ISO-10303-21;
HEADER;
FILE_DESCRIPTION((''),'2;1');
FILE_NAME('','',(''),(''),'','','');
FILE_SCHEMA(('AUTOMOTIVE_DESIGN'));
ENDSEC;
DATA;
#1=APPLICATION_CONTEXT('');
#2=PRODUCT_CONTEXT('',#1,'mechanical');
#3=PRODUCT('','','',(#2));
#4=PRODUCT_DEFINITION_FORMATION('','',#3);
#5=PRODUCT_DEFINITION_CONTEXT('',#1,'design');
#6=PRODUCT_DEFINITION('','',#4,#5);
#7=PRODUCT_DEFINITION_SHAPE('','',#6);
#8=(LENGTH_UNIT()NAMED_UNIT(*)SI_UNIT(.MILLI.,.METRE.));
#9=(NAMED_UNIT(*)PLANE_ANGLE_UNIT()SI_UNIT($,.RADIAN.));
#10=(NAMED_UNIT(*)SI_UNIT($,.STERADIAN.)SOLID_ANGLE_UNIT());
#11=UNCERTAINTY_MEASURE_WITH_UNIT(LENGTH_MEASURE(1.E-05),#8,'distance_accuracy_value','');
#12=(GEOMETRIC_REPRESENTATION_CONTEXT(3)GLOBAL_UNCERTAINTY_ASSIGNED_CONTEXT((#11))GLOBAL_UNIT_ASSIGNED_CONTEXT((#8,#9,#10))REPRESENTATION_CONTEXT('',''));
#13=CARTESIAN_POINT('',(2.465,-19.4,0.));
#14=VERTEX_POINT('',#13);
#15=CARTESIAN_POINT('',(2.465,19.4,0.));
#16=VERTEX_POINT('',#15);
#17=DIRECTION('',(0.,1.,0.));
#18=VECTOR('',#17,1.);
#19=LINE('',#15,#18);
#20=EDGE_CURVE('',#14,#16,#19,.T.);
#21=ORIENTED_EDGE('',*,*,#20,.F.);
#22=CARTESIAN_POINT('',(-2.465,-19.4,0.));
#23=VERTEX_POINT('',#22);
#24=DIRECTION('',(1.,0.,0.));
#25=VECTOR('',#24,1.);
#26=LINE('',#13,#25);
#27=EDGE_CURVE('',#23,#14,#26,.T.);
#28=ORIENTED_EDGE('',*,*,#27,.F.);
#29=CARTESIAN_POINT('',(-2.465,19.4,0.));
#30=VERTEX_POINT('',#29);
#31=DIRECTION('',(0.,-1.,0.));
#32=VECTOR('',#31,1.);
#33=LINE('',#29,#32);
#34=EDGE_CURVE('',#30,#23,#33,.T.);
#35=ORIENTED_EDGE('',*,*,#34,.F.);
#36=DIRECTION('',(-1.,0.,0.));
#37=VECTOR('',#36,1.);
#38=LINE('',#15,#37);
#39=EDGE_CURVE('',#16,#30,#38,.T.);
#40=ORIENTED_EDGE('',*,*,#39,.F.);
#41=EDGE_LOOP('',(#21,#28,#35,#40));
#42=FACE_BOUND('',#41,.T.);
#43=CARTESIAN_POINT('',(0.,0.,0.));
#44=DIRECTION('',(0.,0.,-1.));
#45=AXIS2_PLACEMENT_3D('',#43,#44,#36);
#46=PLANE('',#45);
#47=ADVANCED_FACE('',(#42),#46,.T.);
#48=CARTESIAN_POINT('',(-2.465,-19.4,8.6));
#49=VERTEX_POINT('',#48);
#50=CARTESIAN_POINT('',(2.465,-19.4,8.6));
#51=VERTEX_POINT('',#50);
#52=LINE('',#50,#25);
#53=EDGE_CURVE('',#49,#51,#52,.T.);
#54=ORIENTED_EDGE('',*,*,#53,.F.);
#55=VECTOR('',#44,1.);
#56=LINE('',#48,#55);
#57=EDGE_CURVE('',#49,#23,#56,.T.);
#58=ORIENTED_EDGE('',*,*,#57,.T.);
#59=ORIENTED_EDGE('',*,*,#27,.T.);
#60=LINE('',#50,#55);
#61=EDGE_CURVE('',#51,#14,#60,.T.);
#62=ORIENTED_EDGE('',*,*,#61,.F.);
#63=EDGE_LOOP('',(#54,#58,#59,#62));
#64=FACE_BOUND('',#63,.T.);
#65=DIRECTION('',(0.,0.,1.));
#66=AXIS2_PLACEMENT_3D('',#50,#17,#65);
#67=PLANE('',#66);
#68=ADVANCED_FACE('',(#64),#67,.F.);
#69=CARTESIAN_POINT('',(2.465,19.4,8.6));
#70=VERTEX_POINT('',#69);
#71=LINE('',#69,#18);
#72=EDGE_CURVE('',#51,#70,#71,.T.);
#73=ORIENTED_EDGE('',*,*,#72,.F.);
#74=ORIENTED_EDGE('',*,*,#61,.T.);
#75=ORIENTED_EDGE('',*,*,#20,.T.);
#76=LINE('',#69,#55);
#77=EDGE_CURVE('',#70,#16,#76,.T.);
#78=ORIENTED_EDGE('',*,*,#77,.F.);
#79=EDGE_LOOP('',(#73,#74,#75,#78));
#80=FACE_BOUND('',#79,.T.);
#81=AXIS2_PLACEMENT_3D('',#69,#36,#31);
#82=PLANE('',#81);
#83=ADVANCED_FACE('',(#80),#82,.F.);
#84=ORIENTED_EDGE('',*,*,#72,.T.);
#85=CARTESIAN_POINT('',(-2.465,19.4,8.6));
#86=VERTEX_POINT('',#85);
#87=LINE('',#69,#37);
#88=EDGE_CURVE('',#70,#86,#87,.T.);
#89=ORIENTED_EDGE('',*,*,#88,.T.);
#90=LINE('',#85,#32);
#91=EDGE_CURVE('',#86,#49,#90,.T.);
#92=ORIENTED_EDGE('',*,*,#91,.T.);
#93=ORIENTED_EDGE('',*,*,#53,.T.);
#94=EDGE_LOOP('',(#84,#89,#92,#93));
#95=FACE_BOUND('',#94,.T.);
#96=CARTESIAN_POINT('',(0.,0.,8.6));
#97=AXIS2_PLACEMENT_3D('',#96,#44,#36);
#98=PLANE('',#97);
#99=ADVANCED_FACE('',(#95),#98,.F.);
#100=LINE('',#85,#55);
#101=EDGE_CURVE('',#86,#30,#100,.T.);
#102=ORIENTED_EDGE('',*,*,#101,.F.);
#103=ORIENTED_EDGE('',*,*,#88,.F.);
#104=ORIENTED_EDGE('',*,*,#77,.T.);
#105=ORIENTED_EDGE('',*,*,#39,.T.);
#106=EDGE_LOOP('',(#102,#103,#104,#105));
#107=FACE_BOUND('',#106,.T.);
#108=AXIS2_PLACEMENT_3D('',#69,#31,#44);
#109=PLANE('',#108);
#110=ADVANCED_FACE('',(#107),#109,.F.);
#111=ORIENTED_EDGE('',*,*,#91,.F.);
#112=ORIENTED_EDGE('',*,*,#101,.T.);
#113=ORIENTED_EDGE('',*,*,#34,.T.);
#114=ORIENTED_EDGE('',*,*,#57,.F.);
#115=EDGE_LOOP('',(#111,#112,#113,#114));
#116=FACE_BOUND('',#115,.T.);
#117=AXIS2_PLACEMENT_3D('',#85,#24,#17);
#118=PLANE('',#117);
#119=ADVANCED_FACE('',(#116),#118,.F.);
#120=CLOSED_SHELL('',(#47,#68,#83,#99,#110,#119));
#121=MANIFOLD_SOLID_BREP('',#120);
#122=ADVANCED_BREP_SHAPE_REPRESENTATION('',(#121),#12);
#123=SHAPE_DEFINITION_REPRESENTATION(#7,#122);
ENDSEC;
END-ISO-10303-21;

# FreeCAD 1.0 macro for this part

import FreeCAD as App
import Part
import Sketcher
Q = App.Units.Quantity


def add_polygon(sketch, points):
    """Adds a closed chain of lines whose ends are joined by coincident constraints."""
    first, n = sketch.GeometryCount, len(points)
    for a, b in zip(points, points[1:] + points[:1]):
        sketch.addGeometry(Part.LineSegment(App.Vector(*a, 0), App.Vector(*b, 0)), False)
    for i in range(n):
        sketch.addConstraint(Sketcher.Constraint("Coincident", first + i, 2, first + (i + 1) % n, 1))

doc = App.newDocument("Part")
body = doc.addObject("PartDesign::Body", "Body")

sketch1 = body.newObject("Sketcher::SketchObject", "Sketch")
sketch1.AttachmentSupport = (doc.getObject("XY_Plane"), [""])
sketch1.MapMode = "FlatFace"
add_polygon(sketch1, [(-2.5, 19.4), (-2.5, -19.4), (2.5, -19.4), (2.5, 19.4)])
sketch1.addConstraint([
    Sketcher.Constraint("Vertical", 0),
    Sketcher.Constraint("Horizontal", 1),
    Sketcher.Constraint("Vertical", 2),
    Sketcher.Constraint("Horizontal", 3),
    Sketcher.Constraint("Symmetric", 0, 2, 2, 2, -1, 1),
    Sketcher.Constraint("DistanceY", 0, 2, 0, 1, Q("38.8 mm")),
    Sketcher.Constraint("DistanceX", 1, 1, 1, 2, Q("4.93 mm")),
])
pad1 = body.newObject("PartDesign::Pad", "Pad")
pad1.Profile = sketch1
pad1.Length = 8.6

doc.recompute()
